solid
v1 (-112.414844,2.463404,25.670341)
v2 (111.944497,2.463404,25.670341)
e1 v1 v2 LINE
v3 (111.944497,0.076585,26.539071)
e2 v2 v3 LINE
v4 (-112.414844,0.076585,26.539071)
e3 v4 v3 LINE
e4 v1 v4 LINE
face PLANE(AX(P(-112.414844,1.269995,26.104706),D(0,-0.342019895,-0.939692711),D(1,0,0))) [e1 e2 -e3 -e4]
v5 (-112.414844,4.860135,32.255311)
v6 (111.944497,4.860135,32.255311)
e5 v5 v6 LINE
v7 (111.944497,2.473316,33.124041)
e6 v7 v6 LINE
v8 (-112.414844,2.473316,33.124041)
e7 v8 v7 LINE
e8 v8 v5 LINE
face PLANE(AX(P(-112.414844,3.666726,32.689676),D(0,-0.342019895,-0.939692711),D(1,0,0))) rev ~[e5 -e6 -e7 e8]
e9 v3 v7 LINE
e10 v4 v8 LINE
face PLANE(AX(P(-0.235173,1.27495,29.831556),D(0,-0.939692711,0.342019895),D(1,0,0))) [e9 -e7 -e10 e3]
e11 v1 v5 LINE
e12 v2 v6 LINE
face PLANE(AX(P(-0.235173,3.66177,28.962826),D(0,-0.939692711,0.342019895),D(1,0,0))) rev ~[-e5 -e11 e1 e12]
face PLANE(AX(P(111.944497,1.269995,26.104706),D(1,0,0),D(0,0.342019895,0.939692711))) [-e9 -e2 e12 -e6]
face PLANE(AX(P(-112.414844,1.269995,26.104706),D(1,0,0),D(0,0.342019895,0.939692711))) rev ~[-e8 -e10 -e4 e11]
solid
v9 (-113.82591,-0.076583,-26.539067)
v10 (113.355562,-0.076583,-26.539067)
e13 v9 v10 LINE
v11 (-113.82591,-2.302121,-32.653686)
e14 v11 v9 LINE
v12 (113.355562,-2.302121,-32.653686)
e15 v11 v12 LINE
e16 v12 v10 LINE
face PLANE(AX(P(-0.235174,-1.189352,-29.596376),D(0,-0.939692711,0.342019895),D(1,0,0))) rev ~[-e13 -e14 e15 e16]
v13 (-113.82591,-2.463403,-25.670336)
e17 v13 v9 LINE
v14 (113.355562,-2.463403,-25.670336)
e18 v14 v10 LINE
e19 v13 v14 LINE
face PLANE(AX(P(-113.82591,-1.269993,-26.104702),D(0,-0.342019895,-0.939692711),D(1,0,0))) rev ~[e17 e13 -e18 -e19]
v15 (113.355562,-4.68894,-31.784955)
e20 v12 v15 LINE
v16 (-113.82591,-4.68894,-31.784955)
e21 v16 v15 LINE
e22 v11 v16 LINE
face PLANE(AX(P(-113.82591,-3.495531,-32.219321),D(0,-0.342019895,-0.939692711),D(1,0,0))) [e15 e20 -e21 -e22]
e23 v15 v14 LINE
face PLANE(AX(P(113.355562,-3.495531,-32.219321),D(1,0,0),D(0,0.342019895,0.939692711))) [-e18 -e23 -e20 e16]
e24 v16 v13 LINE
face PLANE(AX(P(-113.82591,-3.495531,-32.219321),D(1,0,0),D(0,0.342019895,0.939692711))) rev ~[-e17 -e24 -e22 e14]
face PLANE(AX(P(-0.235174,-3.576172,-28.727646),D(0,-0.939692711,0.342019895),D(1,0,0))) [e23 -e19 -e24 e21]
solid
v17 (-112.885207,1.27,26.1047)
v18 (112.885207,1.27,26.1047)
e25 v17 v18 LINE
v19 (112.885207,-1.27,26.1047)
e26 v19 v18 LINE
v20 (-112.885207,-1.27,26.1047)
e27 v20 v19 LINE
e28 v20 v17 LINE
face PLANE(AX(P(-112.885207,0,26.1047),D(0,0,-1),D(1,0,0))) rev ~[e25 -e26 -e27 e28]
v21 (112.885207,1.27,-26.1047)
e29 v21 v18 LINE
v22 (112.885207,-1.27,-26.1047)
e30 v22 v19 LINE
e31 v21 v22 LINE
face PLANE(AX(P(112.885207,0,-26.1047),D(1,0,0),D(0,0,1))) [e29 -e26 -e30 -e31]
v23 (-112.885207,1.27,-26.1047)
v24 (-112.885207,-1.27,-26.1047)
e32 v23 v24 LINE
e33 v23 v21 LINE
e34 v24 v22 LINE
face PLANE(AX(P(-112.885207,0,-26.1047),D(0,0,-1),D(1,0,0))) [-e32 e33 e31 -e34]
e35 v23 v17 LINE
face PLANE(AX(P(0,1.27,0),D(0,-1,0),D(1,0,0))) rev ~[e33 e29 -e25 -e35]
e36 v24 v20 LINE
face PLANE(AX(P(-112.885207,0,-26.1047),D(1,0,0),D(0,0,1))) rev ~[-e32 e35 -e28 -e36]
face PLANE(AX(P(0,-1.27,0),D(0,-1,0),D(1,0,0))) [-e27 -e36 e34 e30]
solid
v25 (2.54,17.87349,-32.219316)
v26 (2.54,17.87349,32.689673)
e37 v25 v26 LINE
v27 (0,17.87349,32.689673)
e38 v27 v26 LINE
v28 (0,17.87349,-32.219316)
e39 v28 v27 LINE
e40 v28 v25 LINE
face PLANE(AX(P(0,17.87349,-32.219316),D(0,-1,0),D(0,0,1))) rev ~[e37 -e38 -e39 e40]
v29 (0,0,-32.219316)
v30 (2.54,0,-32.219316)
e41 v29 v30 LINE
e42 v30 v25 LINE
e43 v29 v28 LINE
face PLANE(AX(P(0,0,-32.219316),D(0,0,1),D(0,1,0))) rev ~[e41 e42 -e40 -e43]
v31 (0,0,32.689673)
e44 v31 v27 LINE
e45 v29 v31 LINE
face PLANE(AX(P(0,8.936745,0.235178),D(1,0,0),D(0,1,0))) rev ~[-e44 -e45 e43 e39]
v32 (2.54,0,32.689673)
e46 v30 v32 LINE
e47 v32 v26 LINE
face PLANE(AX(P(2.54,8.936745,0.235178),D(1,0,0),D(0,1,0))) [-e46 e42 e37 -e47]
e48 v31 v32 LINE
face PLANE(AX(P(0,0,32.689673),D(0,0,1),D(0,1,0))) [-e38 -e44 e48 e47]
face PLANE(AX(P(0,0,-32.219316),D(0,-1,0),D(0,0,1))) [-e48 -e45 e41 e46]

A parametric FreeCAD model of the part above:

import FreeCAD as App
import Part
import Sketcher

V = App.Vector
Q = App.Units.Quantity

doc = App.newDocument("Part")
params = doc.addObject("Spreadsheet::Sheet", "Params")
for row, (alias, value) in enumerate([
    ("pad1_length", "0.1 in"),
    ("pad2_length", "0.1 in"),
    ("pad3_length", "0.1 in"),
    ("pad4_length", "0.1 in"),
], start=1):
    params.set(f"A{row}", alias)
    params.set(f"B{row}", "=" + value)
    params.setAlias(f"B{row}", alias)

body = doc.addObject("PartDesign::Body", "Body")

sketch1 = doc.addObject("Sketcher::SketchObject", "Sketch")
body.addObject(sketch1)
sketch1.AttachmentSupport = (doc.XZ_Plane, [""])
sketch1.MapMode = "FlatFace"
sketch1.addGeometry([
    Part.LineSegment(V(-113, 26, 0), V(-113, -26, 0)),
    Part.LineSegment(V(-113, -26, 0), V(113, -26, 0)),
    Part.LineSegment(V(113, -26, 0), V(113, 26, 0)),
    Part.LineSegment(V(113, 26, 0), V(-113, 26, 0)),
], False)
sketch1.addConstraint([
    Sketcher.Constraint("Coincident", 0, 2, 1, 1),
    Sketcher.Constraint("Coincident", 1, 2, 2, 1),
    Sketcher.Constraint("Coincident", 2, 2, 3, 1),
    Sketcher.Constraint("Coincident", 3, 2, 0, 1),
    Sketcher.Constraint("Vertical", 0),
    Sketcher.Constraint("Horizontal", 1),
    Sketcher.Constraint("Vertical", 2),
    Sketcher.Constraint("Horizontal", 3),
    Sketcher.Constraint("Symmetric", 0, 2, 2, 2, -1, 1),
    Sketcher.Constraint("DistanceY", 0, 2, 0, 1, Q("52.2094 mm")),
    Sketcher.Constraint("DistanceX", 1, 1, 1, 2, Q("225.770414 mm")),
])
pad1 = doc.addObject("PartDesign::Pad", "Pad")
body.addObject(pad1)
pad1.Profile = sketch1
pad1.setExpression("Length", "Params.pad1_length")
pad1.Midplane = True
body2 = doc.addObject("PartDesign::Body", "Body001")

sketch2 = doc.addObject("Sketcher::SketchObject", "Sketch001")
body2.addObject(sketch2)
sketch2.Placement = App.Placement(V(0, -7.268451, 2.6455), App.Rotation(V(1, 0, 0), V(0, 0.342019895, 0.939692711), V(0, -0.939692711, 0.342019895), "ZXY"))
sketch2.addGeometry([
    Part.LineSegment(V(-112, 32, 0), V(-112, 25, 0)),
    Part.LineSegment(V(-112, 25, 0), V(112, 25, 0)),
    Part.LineSegment(V(112, 25, 0), V(112, 32, 0)),
    Part.LineSegment(V(112, 32, 0), V(-112, 32, 0)),
], False)
sketch2.addConstraint([
    Sketcher.Constraint("Coincident", 0, 2, 1, 1),
    Sketcher.Constraint("Coincident", 1, 2, 2, 1),
    Sketcher.Constraint("Coincident", 2, 2, 3, 1),
    Sketcher.Constraint("Coincident", 3, 2, 0, 1),
    Sketcher.Constraint("Vertical", 0),
    Sketcher.Constraint("Horizontal", 1),
    Sketcher.Constraint("Vertical", 2),
    Sketcher.Constraint("Horizontal", 3),
    Sketcher.Constraint("DistanceX", 1, 1, 1, 2, Q("224.359341 mm")),
    Sketcher.Constraint("DistanceY", 0, 2, 0, 1, Q("7.007578 mm")),
    Sketcher.Constraint("DistanceY", -1, 1, 2, 2, Q("31.972341 mm")),
    Sketcher.Constraint("DistanceX", 0, 2, -1, 1, Q("112.414844 mm")),
])
pad2 = doc.addObject("PartDesign::Pad", "Pad001")
body2.addObject(pad2)
pad2.Profile = sketch2
pad2.setExpression("Length", "Params.pad2_length")
pad2.Midplane = True
body3 = doc.addObject("PartDesign::Body", "Body002")

sketch3 = doc.addObject("Sketcher::SketchObject", "Sketch002")
body3.addObject(sketch3)
sketch3.Placement = App.Placement(V(0, 7.268451, -2.6455), App.Rotation(V(1, 0, 0), V(0, 0.342019895, 0.939692711), V(0, -0.939692711, 0.342019895), "ZXY"))
sketch3.addGeometry([
    Part.LineSegment(V(-114, -25, 0), V(-114, -31, 0)),
    Part.LineSegment(V(-114, -31, 0), V(113, -31, 0)),
    Part.LineSegment(V(113, -31, 0), V(113, -25, 0)),
    Part.LineSegment(V(113, -25, 0), V(-114, -25, 0)),
], False)
sketch3.addConstraint([
    Sketcher.Constraint("Coincident", 0, 2, 1, 1),
    Sketcher.Constraint("Coincident", 1, 2, 2, 1),
    Sketcher.Constraint("Coincident", 2, 2, 3, 1),
    Sketcher.Constraint("Coincident", 3, 2, 0, 1),
    Sketcher.Constraint("Vertical", 0),
    Sketcher.Constraint("Horizontal", 1),
    Sketcher.Constraint("Vertical", 2),
    Sketcher.Constraint("Horizontal", 3),
    Sketcher.Constraint("DistanceX", 1, 1, 1, 2, Q("227.181472 mm")),
    Sketcher.Constraint("DistanceY", 0, 2, 0, 1, Q("6.507041 mm")),
    Sketcher.Constraint("DistanceY", 0, 2, -1, 1, Q("31.471799 mm")),
    Sketcher.Constraint("DistanceX", 0, 2, -1, 1, Q("113.82591 mm")),
])
pad3 = doc.addObject("PartDesign::Pad", "Pad002")
body3.addObject(pad3)
pad3.Profile = sketch3
pad3.setExpression("Length", "Params.pad3_length")
pad3.Midplane = True
body4 = doc.addObject("PartDesign::Body", "Body003")

sketch4 = doc.addObject("Sketcher::SketchObject", "Sketch003")
body4.addObject(sketch4)
sketch4.AttachmentSupport = (doc.getObject("YZ_Plane003"), [""])
sketch4.MapMode = "FlatFace"
sketch4.addGeometry([
    Part.LineSegment(V(0, 33, 0), V(0, -32, 0)),
    Part.LineSegment(V(0, -32, 0), V(18, -32, 0)),
    Part.LineSegment(V(18, -32, 0), V(18, 33, 0)),
    Part.LineSegment(V(18, 33, 0), V(0, 33, 0)),
], False)
sketch4.addConstraint([
    Sketcher.Constraint("Coincident", 0, 2, 1, 1),
    Sketcher.Constraint("Coincident", 1, 2, 2, 1),
    Sketcher.Constraint("Coincident", 2, 2, 3, 1),
    Sketcher.Constraint("Coincident", 3, 2, 0, 1),
    Sketcher.Constraint("Vertical", 0),
    Sketcher.Constraint("Horizontal", 1),
    Sketcher.Constraint("Vertical", 2),
    Sketcher.Constraint("Horizontal", 3),
    Sketcher.Constraint("PointOnObject", 0, 2, -2),
    Sketcher.Constraint("DistanceX", 1, 1, 1, 2, Q("17.87349 mm")),
    Sketcher.Constraint("DistanceY", 0, 2, 0, 1, Q("64.908989 mm")),
    Sketcher.Constraint("DistanceY", 0, 2, -1, 1, Q("32.219316 mm")),
])
pad4 = doc.addObject("PartDesign::Pad", "Pad003")
body4.addObject(pad4)
pad4.Profile = sketch4
pad4.setExpression("Length", "Params.pad4_length")

doc.recompute()
